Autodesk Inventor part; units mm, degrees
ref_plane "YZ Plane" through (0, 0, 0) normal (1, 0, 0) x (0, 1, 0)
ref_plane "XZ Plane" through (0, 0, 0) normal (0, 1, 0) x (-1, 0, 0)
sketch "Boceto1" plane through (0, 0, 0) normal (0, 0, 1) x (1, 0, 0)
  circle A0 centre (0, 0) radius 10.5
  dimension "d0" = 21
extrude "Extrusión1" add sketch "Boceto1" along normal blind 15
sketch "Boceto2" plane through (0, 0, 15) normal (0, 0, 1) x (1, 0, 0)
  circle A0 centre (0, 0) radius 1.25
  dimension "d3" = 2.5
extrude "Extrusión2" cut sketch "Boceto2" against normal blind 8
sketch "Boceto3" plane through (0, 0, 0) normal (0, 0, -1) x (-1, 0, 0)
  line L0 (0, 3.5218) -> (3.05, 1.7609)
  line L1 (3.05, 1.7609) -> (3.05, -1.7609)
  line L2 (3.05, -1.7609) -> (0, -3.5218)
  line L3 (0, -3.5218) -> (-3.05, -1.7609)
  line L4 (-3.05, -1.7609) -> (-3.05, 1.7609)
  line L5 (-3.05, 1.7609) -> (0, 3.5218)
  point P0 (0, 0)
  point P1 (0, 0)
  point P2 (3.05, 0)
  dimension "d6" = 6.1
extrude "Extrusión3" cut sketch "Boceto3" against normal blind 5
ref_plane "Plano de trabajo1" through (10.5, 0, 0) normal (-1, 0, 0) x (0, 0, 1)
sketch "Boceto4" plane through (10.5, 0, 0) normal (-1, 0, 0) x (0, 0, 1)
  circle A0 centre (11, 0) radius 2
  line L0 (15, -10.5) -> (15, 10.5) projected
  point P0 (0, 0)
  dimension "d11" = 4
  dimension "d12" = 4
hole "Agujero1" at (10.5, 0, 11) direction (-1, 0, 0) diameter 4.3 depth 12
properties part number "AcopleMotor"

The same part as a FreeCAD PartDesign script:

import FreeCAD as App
import Part
import Sketcher
from FreeCAD import Vector
Q = App.Units.Quantity

doc = App.newDocument("Part")
body = doc.addObject("PartDesign::Body", "Body")

# Sketch on XY plane
sketch1 = doc.addObject("Sketcher::SketchObject", "Sketch")
body.addObject(sketch1)
sketch1.AttachmentSupport = (doc.XY_Plane, [""])
sketch1.MapMode = "FlatFace"
sketch1.addGeometry(Part.Circle(Vector(0, 0, 0), Vector(0, 0, 1), 10.5), False)
sketch1.addConstraint(Sketcher.Constraint("Coincident", 0, 3, -1, 1))
sketch1.addConstraint(Sketcher.Constraint("Diameter", 0, 21.0))
pad1 = doc.addObject("PartDesign::Pad", "Pad")
body.addObject(pad1)
pad1.Profile = sketch1
pad1.Length = 15

# Sketch on XY plane
sketch2 = doc.addObject("Sketcher::SketchObject", "Sketch001")
body.addObject(sketch2)
sketch2.AttachmentSupport = (doc.XY_Plane, [""])
sketch2.MapMode = "FlatFace"
sketch2.AttachmentOffset = App.Placement(Vector(0, 0, 15), App.Rotation())
sketch2.addGeometry(Part.Circle(Vector(0, 0, 0), Vector(0, 0, 1), 1.25), False)
sketch2.addConstraint(Sketcher.Constraint("Coincident", 0, 3, -1, 1))
sketch2.addConstraint(Sketcher.Constraint("Diameter", 0, 2.5))
pocket1 = doc.addObject("PartDesign::Pocket", "Pocket")
body.addObject(pocket1)
pocket1.Profile = sketch2
pocket1.Length = 8

# Sketch on XY plane
sketch3 = doc.addObject("Sketcher::SketchObject", "Sketch002")
body.addObject(sketch3)
sketch3.AttachmentSupport = (doc.XY_Plane, [""])
sketch3.MapMode = "FlatFace"
sketch3.addGeometry(Part.LineSegment(Vector(-3.05, 1.7609, 0), Vector(0, 3.5218, 0)), False)
sketch3.addGeometry(Part.LineSegment(Vector(0, 3.5218, 0), Vector(3.05, 1.7609, 0)), False)
sketch3.addGeometry(Part.LineSegment(Vector(3.05, 1.7609, 0), Vector(3.05, -1.7609, 0)), False)
sketch3.addGeometry(Part.LineSegment(Vector(3.05, -1.7609, 0), Vector(0, -3.5218, 0)), False)
sketch3.addGeometry(Part.LineSegment(Vector(0, -3.5218, 0), Vector(-3.05, -1.7609, 0)), False)
sketch3.addGeometry(Part.LineSegment(Vector(-3.05, -1.7609, 0), Vector(-3.05, 1.7609, 0)), False)
sketch3.addConstraint(Sketcher.Constraint("Coincident", 0, 2, 1, 1))
sketch3.addConstraint(Sketcher.Constraint("Coincident", 1, 2, 2, 1))
sketch3.addConstraint(Sketcher.Constraint("Coincident", 2, 2, 3, 1))
sketch3.addConstraint(Sketcher.Constraint("Coincident", 3, 2, 4, 1))
sketch3.addConstraint(Sketcher.Constraint("Coincident", 4, 2, 5, 1))
sketch3.addConstraint(Sketcher.Constraint("Coincident", 5, 2, 0, 1))
sketch3.addConstraint(Sketcher.Constraint("Vertical", 2))
sketch3.addConstraint(Sketcher.Constraint("Vertical", 5))
sketch3.addConstraint(Sketcher.Constraint("Symmetric", 0, 2, 3, 2, -1, 1))
sketch3.addConstraint(Sketcher.Constraint("Symmetric", 1, 2, 4, 2, -1, 1))
sketch3.addConstraint(Sketcher.Constraint("PointOnObject", 0, 2, -2))
sketch3.addConstraint(Sketcher.Constraint("Parallel", 0, 3))
sketch3.addConstraint(Sketcher.Constraint("Horizontal", 2, 2, 4, 2))
sketch3.addConstraint(Sketcher.Constraint("DistanceX", 4, 2, 2, 2, 6.1))
sketch3.addConstraint(Sketcher.Constraint("Angle", 0, Q("29.9997 deg")))
sketch3.addConstraint(Sketcher.Constraint("DistanceY", 2, 2, 2, 1, 3.5218))
pocket2 = doc.addObject("PartDesign::Pocket", "Pocket001")
body.addObject(pocket2)
pocket2.Profile = sketch3
pocket2.Length = 5
pocket2.Reversed = True

# Sketch on YZ plane
sketch4 = doc.addObject("Sketcher::SketchObject", "Sketch003")
body.addObject(sketch4)
sketch4.AttachmentSupport = (doc.YZ_Plane, [""])
sketch4.MapMode = "FlatFace"
sketch4.AttachmentOffset = App.Placement(Vector(0, 0, 10.5), App.Rotation())
sketch4.addGeometry(Part.Circle(Vector(0, 11, 0), Vector(0, 0, 1), 2.15), False)
sketch4.addConstraint(Sketcher.Constraint("PointOnObject", 0, 3, -2))
sketch4.addConstraint(Sketcher.Constraint("Diameter", 0, 4.3))
sketch4.addConstraint(Sketcher.Constraint("DistanceY", -1, 1, 0, 3, 11.0))
doc.recompute()
hole = doc.addObject("PartDesign::Hole", "Hole")
body.addObject(hole)
hole.Profile = sketch4
hole.ThreadType = "None"
hole.Diameter = 4.3
hole.DepthType = "Dimension"
hole.Depth = 12
hole.DrillPoint = "Flat"

doc.recompute()
